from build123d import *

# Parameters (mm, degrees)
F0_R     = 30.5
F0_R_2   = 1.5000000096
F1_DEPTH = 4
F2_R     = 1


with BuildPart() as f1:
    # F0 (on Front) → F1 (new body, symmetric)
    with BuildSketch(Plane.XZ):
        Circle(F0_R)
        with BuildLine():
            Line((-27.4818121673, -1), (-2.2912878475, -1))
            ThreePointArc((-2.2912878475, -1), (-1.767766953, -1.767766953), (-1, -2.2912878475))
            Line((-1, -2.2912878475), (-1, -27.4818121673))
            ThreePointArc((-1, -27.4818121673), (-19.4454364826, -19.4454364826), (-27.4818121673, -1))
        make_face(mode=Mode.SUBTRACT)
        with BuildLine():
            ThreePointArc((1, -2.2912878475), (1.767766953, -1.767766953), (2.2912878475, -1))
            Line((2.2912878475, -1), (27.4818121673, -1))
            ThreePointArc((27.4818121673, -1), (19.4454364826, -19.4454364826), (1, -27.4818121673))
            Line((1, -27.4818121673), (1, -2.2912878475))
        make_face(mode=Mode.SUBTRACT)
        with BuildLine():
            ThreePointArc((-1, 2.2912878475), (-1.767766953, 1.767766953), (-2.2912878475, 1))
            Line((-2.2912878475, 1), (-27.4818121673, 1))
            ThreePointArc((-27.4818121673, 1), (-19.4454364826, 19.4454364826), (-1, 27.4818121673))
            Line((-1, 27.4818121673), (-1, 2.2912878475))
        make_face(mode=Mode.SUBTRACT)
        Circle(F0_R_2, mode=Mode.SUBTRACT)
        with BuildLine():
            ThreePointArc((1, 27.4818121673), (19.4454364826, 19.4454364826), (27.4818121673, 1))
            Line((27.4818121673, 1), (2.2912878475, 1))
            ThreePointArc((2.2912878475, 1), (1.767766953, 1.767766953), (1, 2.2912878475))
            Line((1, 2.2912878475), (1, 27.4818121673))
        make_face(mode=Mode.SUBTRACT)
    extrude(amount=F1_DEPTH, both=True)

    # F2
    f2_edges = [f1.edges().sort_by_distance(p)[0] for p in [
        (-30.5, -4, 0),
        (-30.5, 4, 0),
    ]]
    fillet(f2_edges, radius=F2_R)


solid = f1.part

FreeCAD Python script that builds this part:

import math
import FreeCAD as App
import Part
import Sketcher


def edges_at(feature, points):
    """Names of the edges that pass closest to the given points."""
    edges = feature.Shape.Edges
    near = lambda p: min(range(len(edges)), key=lambda i: edges[i].distToShape(Part.Vertex(*p))[0])
    return sorted({f"Edge{near(p) + 1}" for p in points})

doc = App.newDocument("Part")
body = doc.addObject("PartDesign::Body", "Body")

# Sketch on XZ plane
sketch1 = body.newObject("Sketcher::SketchObject", "Sketch")
sketch1.AttachmentSupport = (doc.getObject("XZ_Plane"), [""])
sketch1.MapMode = "FlatFace"
sketch1.addGeometry(Part.Circle(App.Vector(0, 0, 0), App.Vector(0, 0, 1), 30.5), False)
sketch1.addGeometry(Part.ArcOfCircle(Part.Circle(App.Vector(0, 0, 0), App.Vector(0, 0, 1), 27.5), math.radians(-177.916058), math.radians(-92.083942)), False)
sketch1.addGeometry(Part.LineSegment(App.Vector(-27.481812, -1, 0), App.Vector(-2.291288, -1, 0)), False)
sketch1.addGeometry(Part.ArcOfCircle(Part.Circle(App.Vector(0, 0, 0), App.Vector(0, 0, 1), 2.5), math.radians(-156.421822), math.radians(-113.578178)), False)
sketch1.addGeometry(Part.LineSegment(App.Vector(-1, -2.291288, 0), App.Vector(-1, -27.481812, 0)), False)
sketch1.addGeometry(Part.LineSegment(App.Vector(1, -27.481812, 0), App.Vector(1, -2.291288, 0)), False)
sketch1.addGeometry(Part.ArcOfCircle(Part.Circle(App.Vector(0, 0, 0), App.Vector(0, 0, 1), 2.5), math.radians(-66.421822), math.radians(-23.578178)), False)
sketch1.addGeometry(Part.LineSegment(App.Vector(2.291288, -1, 0), App.Vector(27.481812, -1, 0)), False)
sketch1.addGeometry(Part.ArcOfCircle(Part.Circle(App.Vector(0, 0, 0), App.Vector(0, 0, 1), 27.5), math.radians(-87.916058), math.radians(-2.083942)), False)
sketch1.addGeometry(Part.LineSegment(App.Vector(-1, 27.481812, 0), App.Vector(-1, 2.291288, 0)), False)
sketch1.addGeometry(Part.ArcOfCircle(Part.Circle(App.Vector(0, 0, 0), App.Vector(0, 0, 1), 2.5), math.radians(113.578178), math.radians(156.421822)), False)
sketch1.addGeometry(Part.LineSegment(App.Vector(-2.291288, 1, 0), App.Vector(-27.481812, 1, 0)), False)
sketch1.addGeometry(Part.ArcOfCircle(Part.Circle(App.Vector(0, 0, 0), App.Vector(0, 0, 1), 27.5), math.radians(92.083942), math.radians(177.916058)), False)
sketch1.addGeometry(Part.Circle(App.Vector(0, 0, 0), App.Vector(0, 0, 1), 1.5), False)
sketch1.addGeometry(Part.LineSegment(App.Vector(1, 2.291288, 0), App.Vector(1, 27.481812, 0)), False)
sketch1.addGeometry(Part.ArcOfCircle(Part.Circle(App.Vector(0, 0, 0), App.Vector(0, 0, 1), 27.5), math.radians(2.083942), math.radians(87.916058)), False)
sketch1.addGeometry(Part.LineSegment(App.Vector(27.481812, 1, 0), App.Vector(2.291288, 1, 0)), False)
sketch1.addGeometry(Part.ArcOfCircle(Part.Circle(App.Vector(0, 0, 0), App.Vector(0, 0, 1), 2.5), math.radians(23.578178), math.radians(66.421822)), False)
sketch1.addConstraint(Sketcher.Constraint("Coincident", 1, 1, 2, 1))
sketch1.addConstraint(Sketcher.Constraint("Coincident", 2, 2, 3, 1))
sketch1.addConstraint(Sketcher.Constraint("Coincident", 3, 2, 4, 1))
sketch1.addConstraint(Sketcher.Constraint("Coincident", 4, 2, 1, 2))
sketch1.addConstraint(Sketcher.Constraint("Coincident", 5, 2, 6, 1))
sketch1.addConstraint(Sketcher.Constraint("Coincident", 6, 2, 7, 1))
sketch1.addConstraint(Sketcher.Constraint("Coincident", 7, 2, 8, 2))
sketch1.addConstraint(Sketcher.Constraint("Coincident", 8, 1, 5, 1))
sketch1.addConstraint(Sketcher.Constraint("Coincident", 9, 2, 10, 1))
sketch1.addConstraint(Sketcher.Constraint("Coincident", 10, 2, 11, 1))
sketch1.addConstraint(Sketcher.Constraint("Coincident", 11, 2, 12, 2))
sketch1.addConstraint(Sketcher.Constraint("Coincident", 12, 1, 9, 1))
sketch1.addConstraint(Sketcher.Constraint("Coincident", 14, 2, 15, 2))
sketch1.addConstraint(Sketcher.Constraint("Coincident", 15, 1, 16, 1))
sketch1.addConstraint(Sketcher.Constraint("Coincident", 16, 2, 17, 1))
sketch1.addConstraint(Sketcher.Constraint("Coincident", 17, 2, 14, 1))
sketch1.addConstraint(Sketcher.Constraint("Horizontal", 2))
sketch1.addConstraint(Sketcher.Constraint("Vertical", 4))
sketch1.addConstraint(Sketcher.Constraint("Vertical", 5))
sketch1.addConstraint(Sketcher.Constraint("Horizontal", 7))
sketch1.addConstraint(Sketcher.Constraint("Vertical", 9))
sketch1.addConstraint(Sketcher.Constraint("Horizontal", 11))
sketch1.addConstraint(Sketcher.Constraint("Vertical", 14))
sketch1.addConstraint(Sketcher.Constraint("Horizontal", 16))
sketch1.addConstraint(Sketcher.Constraint("Coincident", 0, 3, -1, 1))
sketch1.addConstraint(Sketcher.Constraint("Coincident", 1, 3, -1, 1))
sketch1.addConstraint(Sketcher.Constraint("Coincident", 3, 3, -1, 1))
sketch1.addConstraint(Sketcher.Constraint("Coincident", 6, 3, -1, 1))
sketch1.addConstraint(Sketcher.Constraint("Coincident", 8, 3, -1, 1))
sketch1.addConstraint(Sketcher.Constraint("Coincident", 10, 3, -1, 1))
sketch1.addConstraint(Sketcher.Constraint("Coincident", 12, 3, -1, 1))
sketch1.addConstraint(Sketcher.Constraint("Coincident", 13, 3, -1, 1))
sketch1.addConstraint(Sketcher.Constraint("Coincident", 15, 3, -1, 1))
sketch1.addConstraint(Sketcher.Constraint("Coincident", 17, 3, -1, 1))
sketch1.addConstraint(Sketcher.Constraint("Equal", 3, 6))
sketch1.addConstraint(Sketcher.Constraint("Equal", 1, 8))
sketch1.addConstraint(Sketcher.Constraint("Equal", 6, 10))
sketch1.addConstraint(Sketcher.Constraint("Equal", 8, 12))
sketch1.addConstraint(Sketcher.Constraint("Equal", 12, 15))
sketch1.addConstraint(Sketcher.Constraint("Equal", 10, 17))
sketch1.addConstraint(Sketcher.Constraint("Horizontal", 3, 2, 5, 2))
sketch1.addConstraint(Sketcher.Constraint("Horizontal", 2, 2, 6, 2))
sketch1.addConstraint(Sketcher.Constraint("Horizontal", 12, 1, 14, 2))
sketch1.addConstraint(Sketcher.Constraint("Horizontal", 11, 2, 15, 1))
sketch1.addConstraint(Sketcher.Constraint("Vertical", 4, 2, 9, 2))
sketch1.addConstraint(Sketcher.Constraint("Vertical", 2, 2, 10, 2))
sketch1.addConstraint(Sketcher.Constraint("Equal", 16, 4))
sketch1.addConstraint(Sketcher.Constraint("Diameter", 0, 61.0))
sketch1.addConstraint(Sketcher.Constraint("Diameter", 13, 3.0))
sketch1.addConstraint(Sketcher.Constraint("Radius", 1, 27.5))
sketch1.addConstraint(Sketcher.Constraint("Radius", 3, 2.5))
sketch1.addConstraint(Sketcher.Constraint("DistanceY", 1, 1, -1, 1, 1.0))
pad1 = body.newObject("PartDesign::Pad", "Pad")
pad1.Profile = sketch1
pad1.Length = 8
pad1.Midplane = True
doc.recompute()

fillet = body.newObject("PartDesign::Fillet", "Fillet")
fillet.Base = (pad1, edges_at(pad1, [(-30.5, -4, 0), (-30.5, 4, 0)]))
fillet.Radius = 1

doc.recompute()
